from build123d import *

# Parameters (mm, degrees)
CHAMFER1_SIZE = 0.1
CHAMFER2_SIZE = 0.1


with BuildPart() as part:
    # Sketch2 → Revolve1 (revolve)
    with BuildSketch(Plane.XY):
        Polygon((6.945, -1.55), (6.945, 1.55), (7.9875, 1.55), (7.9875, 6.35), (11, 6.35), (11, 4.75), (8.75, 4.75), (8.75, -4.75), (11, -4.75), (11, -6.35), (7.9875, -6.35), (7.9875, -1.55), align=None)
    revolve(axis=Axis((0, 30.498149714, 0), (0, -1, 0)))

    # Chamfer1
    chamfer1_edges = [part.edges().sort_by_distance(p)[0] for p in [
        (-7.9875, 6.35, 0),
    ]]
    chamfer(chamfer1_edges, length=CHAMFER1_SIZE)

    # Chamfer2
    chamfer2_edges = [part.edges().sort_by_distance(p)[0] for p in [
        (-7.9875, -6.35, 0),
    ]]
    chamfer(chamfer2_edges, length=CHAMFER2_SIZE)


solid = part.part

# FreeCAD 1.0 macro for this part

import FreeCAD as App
import Part
import Sketcher
from FreeCAD import Vector


def edges_at(feature, points):
    """Names of the edges that pass closest to the given points."""
    edges = feature.Shape.Edges
    near = lambda p: min(range(len(edges)), key=lambda i: edges[i].distToShape(Part.Vertex(*p))[0])
    return sorted({f"Edge{near(p) + 1}" for p in points})

doc = App.newDocument("Part")
body = doc.addObject("PartDesign::Body", "Body")

# Sketch on XY plane
sketch1 = doc.addObject("Sketcher::SketchObject", "Sketch")
body.addObject(sketch1)
sketch1.AttachmentSupport = (doc.XY_Plane, [""])
sketch1.MapMode = "FlatFace"
sketch1.addGeometry([
    Part.LineSegment(Vector(6.945, 1.55, 0), Vector(6.945, -1.55, 0)),  # 0
    Part.LineSegment(Vector(6.945, -1.55, 0), Vector(7.9875, -1.55, 0)),  # 1
    Part.LineSegment(Vector(7.9875, -1.55, 0), Vector(7.9875, -6.35, 0)),  # 2
    Part.LineSegment(Vector(7.9875, -6.35, 0), Vector(11, -6.35, 0)),  # 3
    Part.LineSegment(Vector(11, -6.35, 0), Vector(11, -4.75, 0)),  # 4
    Part.LineSegment(Vector(11, -4.75, 0), Vector(8.75, -4.75, 0)),  # 5
    Part.LineSegment(Vector(8.75, -4.75, 0), Vector(8.75, 4.75, 0)),  # 6
    Part.LineSegment(Vector(8.75, 4.75, 0), Vector(11, 4.75, 0)),  # 7
    Part.LineSegment(Vector(11, 4.75, 0), Vector(11, 6.35, 0)),  # 8
    Part.LineSegment(Vector(11, 6.35, 0), Vector(7.9875, 6.35, 0)),  # 9
    Part.LineSegment(Vector(7.9875, 6.35, 0), Vector(7.9875, 1.55, 0)),  # 10
    Part.LineSegment(Vector(7.9875, 1.55, 0), Vector(6.945, 1.55, 0)),  # 11
], False)
sketch1.addConstraint([
    Sketcher.Constraint("Coincident", 0, 2, 1, 1),
    Sketcher.Constraint("Coincident", 1, 2, 2, 1),
    Sketcher.Constraint("Coincident", 2, 2, 3, 1),
    Sketcher.Constraint("Coincident", 3, 2, 4, 1),
    Sketcher.Constraint("Coincident", 4, 2, 5, 1),
    Sketcher.Constraint("Coincident", 5, 2, 6, 1),
    Sketcher.Constraint("Coincident", 6, 2, 7, 1),
    Sketcher.Constraint("Coincident", 7, 2, 8, 1),
    Sketcher.Constraint("Coincident", 8, 2, 9, 1),
    Sketcher.Constraint("Coincident", 9, 2, 10, 1),
    Sketcher.Constraint("Coincident", 10, 2, 11, 1),
    Sketcher.Constraint("Coincident", 11, 2, 0, 1),
    Sketcher.Constraint("Vertical", 0),
    Sketcher.Constraint("Horizontal", 1),
    Sketcher.Constraint("Vertical", 2),
    Sketcher.Constraint("Horizontal", 3),
    Sketcher.Constraint("Vertical", 4),
    Sketcher.Constraint("Horizontal", 5),
    Sketcher.Constraint("Vertical", 6),
    Sketcher.Constraint("Horizontal", 7),
    Sketcher.Constraint("Vertical", 8),
    Sketcher.Constraint("Horizontal", 9),
    Sketcher.Constraint("Vertical", 10),
    Sketcher.Constraint("Horizontal", 11),
    Sketcher.Constraint("Symmetric", 4, 2, 7, 2, -1),
    Sketcher.Constraint("Symmetric", 2, 2, 9, 2, -1),
    Sketcher.Constraint("Equal", 2, 10),
    Sketcher.Constraint("DistanceY", 0, 2, 0, 1, 3.1),
    Sketcher.Constraint("DistanceY", 2, 2, 2, 1, 4.8),
    Sketcher.Constraint("DistanceY", 4, 1, 4, 2, 1.6),
    Sketcher.Constraint("DistanceX", -1, 1, 3, 2, 11.0),
    Sketcher.Constraint("DistanceX", 5, 2, 5, 1, 2.25),
    Sketcher.Constraint("DistanceX", 1, 1, 1, 2, 1.0425),
    Sketcher.Constraint("DistanceX", 3, 1, 3, 2, 3.0125),
])
revolution = doc.addObject("PartDesign::Revolution", "Revolution")
body.addObject(revolution)
revolution.Profile = sketch1
revolution.ReferenceAxis = (sketch1, ["V_Axis"])
revolution.Angle = 360
doc.recompute()

chamfer = doc.addObject("PartDesign::Chamfer", "Chamfer")
body.addObject(chamfer)
chamfer.Base = (revolution, edges_at(revolution, [(-7.987, 6.35, 0)]))
chamfer.Size = 0.1
doc.recompute()

chamfer2 = doc.addObject("PartDesign::Chamfer", "Chamfer001")
body.addObject(chamfer2)
chamfer2.Base = (chamfer, edges_at(chamfer, [(-7.987, -6.35, 0)]))
chamfer2.Size = 0.1

doc.recompute()
